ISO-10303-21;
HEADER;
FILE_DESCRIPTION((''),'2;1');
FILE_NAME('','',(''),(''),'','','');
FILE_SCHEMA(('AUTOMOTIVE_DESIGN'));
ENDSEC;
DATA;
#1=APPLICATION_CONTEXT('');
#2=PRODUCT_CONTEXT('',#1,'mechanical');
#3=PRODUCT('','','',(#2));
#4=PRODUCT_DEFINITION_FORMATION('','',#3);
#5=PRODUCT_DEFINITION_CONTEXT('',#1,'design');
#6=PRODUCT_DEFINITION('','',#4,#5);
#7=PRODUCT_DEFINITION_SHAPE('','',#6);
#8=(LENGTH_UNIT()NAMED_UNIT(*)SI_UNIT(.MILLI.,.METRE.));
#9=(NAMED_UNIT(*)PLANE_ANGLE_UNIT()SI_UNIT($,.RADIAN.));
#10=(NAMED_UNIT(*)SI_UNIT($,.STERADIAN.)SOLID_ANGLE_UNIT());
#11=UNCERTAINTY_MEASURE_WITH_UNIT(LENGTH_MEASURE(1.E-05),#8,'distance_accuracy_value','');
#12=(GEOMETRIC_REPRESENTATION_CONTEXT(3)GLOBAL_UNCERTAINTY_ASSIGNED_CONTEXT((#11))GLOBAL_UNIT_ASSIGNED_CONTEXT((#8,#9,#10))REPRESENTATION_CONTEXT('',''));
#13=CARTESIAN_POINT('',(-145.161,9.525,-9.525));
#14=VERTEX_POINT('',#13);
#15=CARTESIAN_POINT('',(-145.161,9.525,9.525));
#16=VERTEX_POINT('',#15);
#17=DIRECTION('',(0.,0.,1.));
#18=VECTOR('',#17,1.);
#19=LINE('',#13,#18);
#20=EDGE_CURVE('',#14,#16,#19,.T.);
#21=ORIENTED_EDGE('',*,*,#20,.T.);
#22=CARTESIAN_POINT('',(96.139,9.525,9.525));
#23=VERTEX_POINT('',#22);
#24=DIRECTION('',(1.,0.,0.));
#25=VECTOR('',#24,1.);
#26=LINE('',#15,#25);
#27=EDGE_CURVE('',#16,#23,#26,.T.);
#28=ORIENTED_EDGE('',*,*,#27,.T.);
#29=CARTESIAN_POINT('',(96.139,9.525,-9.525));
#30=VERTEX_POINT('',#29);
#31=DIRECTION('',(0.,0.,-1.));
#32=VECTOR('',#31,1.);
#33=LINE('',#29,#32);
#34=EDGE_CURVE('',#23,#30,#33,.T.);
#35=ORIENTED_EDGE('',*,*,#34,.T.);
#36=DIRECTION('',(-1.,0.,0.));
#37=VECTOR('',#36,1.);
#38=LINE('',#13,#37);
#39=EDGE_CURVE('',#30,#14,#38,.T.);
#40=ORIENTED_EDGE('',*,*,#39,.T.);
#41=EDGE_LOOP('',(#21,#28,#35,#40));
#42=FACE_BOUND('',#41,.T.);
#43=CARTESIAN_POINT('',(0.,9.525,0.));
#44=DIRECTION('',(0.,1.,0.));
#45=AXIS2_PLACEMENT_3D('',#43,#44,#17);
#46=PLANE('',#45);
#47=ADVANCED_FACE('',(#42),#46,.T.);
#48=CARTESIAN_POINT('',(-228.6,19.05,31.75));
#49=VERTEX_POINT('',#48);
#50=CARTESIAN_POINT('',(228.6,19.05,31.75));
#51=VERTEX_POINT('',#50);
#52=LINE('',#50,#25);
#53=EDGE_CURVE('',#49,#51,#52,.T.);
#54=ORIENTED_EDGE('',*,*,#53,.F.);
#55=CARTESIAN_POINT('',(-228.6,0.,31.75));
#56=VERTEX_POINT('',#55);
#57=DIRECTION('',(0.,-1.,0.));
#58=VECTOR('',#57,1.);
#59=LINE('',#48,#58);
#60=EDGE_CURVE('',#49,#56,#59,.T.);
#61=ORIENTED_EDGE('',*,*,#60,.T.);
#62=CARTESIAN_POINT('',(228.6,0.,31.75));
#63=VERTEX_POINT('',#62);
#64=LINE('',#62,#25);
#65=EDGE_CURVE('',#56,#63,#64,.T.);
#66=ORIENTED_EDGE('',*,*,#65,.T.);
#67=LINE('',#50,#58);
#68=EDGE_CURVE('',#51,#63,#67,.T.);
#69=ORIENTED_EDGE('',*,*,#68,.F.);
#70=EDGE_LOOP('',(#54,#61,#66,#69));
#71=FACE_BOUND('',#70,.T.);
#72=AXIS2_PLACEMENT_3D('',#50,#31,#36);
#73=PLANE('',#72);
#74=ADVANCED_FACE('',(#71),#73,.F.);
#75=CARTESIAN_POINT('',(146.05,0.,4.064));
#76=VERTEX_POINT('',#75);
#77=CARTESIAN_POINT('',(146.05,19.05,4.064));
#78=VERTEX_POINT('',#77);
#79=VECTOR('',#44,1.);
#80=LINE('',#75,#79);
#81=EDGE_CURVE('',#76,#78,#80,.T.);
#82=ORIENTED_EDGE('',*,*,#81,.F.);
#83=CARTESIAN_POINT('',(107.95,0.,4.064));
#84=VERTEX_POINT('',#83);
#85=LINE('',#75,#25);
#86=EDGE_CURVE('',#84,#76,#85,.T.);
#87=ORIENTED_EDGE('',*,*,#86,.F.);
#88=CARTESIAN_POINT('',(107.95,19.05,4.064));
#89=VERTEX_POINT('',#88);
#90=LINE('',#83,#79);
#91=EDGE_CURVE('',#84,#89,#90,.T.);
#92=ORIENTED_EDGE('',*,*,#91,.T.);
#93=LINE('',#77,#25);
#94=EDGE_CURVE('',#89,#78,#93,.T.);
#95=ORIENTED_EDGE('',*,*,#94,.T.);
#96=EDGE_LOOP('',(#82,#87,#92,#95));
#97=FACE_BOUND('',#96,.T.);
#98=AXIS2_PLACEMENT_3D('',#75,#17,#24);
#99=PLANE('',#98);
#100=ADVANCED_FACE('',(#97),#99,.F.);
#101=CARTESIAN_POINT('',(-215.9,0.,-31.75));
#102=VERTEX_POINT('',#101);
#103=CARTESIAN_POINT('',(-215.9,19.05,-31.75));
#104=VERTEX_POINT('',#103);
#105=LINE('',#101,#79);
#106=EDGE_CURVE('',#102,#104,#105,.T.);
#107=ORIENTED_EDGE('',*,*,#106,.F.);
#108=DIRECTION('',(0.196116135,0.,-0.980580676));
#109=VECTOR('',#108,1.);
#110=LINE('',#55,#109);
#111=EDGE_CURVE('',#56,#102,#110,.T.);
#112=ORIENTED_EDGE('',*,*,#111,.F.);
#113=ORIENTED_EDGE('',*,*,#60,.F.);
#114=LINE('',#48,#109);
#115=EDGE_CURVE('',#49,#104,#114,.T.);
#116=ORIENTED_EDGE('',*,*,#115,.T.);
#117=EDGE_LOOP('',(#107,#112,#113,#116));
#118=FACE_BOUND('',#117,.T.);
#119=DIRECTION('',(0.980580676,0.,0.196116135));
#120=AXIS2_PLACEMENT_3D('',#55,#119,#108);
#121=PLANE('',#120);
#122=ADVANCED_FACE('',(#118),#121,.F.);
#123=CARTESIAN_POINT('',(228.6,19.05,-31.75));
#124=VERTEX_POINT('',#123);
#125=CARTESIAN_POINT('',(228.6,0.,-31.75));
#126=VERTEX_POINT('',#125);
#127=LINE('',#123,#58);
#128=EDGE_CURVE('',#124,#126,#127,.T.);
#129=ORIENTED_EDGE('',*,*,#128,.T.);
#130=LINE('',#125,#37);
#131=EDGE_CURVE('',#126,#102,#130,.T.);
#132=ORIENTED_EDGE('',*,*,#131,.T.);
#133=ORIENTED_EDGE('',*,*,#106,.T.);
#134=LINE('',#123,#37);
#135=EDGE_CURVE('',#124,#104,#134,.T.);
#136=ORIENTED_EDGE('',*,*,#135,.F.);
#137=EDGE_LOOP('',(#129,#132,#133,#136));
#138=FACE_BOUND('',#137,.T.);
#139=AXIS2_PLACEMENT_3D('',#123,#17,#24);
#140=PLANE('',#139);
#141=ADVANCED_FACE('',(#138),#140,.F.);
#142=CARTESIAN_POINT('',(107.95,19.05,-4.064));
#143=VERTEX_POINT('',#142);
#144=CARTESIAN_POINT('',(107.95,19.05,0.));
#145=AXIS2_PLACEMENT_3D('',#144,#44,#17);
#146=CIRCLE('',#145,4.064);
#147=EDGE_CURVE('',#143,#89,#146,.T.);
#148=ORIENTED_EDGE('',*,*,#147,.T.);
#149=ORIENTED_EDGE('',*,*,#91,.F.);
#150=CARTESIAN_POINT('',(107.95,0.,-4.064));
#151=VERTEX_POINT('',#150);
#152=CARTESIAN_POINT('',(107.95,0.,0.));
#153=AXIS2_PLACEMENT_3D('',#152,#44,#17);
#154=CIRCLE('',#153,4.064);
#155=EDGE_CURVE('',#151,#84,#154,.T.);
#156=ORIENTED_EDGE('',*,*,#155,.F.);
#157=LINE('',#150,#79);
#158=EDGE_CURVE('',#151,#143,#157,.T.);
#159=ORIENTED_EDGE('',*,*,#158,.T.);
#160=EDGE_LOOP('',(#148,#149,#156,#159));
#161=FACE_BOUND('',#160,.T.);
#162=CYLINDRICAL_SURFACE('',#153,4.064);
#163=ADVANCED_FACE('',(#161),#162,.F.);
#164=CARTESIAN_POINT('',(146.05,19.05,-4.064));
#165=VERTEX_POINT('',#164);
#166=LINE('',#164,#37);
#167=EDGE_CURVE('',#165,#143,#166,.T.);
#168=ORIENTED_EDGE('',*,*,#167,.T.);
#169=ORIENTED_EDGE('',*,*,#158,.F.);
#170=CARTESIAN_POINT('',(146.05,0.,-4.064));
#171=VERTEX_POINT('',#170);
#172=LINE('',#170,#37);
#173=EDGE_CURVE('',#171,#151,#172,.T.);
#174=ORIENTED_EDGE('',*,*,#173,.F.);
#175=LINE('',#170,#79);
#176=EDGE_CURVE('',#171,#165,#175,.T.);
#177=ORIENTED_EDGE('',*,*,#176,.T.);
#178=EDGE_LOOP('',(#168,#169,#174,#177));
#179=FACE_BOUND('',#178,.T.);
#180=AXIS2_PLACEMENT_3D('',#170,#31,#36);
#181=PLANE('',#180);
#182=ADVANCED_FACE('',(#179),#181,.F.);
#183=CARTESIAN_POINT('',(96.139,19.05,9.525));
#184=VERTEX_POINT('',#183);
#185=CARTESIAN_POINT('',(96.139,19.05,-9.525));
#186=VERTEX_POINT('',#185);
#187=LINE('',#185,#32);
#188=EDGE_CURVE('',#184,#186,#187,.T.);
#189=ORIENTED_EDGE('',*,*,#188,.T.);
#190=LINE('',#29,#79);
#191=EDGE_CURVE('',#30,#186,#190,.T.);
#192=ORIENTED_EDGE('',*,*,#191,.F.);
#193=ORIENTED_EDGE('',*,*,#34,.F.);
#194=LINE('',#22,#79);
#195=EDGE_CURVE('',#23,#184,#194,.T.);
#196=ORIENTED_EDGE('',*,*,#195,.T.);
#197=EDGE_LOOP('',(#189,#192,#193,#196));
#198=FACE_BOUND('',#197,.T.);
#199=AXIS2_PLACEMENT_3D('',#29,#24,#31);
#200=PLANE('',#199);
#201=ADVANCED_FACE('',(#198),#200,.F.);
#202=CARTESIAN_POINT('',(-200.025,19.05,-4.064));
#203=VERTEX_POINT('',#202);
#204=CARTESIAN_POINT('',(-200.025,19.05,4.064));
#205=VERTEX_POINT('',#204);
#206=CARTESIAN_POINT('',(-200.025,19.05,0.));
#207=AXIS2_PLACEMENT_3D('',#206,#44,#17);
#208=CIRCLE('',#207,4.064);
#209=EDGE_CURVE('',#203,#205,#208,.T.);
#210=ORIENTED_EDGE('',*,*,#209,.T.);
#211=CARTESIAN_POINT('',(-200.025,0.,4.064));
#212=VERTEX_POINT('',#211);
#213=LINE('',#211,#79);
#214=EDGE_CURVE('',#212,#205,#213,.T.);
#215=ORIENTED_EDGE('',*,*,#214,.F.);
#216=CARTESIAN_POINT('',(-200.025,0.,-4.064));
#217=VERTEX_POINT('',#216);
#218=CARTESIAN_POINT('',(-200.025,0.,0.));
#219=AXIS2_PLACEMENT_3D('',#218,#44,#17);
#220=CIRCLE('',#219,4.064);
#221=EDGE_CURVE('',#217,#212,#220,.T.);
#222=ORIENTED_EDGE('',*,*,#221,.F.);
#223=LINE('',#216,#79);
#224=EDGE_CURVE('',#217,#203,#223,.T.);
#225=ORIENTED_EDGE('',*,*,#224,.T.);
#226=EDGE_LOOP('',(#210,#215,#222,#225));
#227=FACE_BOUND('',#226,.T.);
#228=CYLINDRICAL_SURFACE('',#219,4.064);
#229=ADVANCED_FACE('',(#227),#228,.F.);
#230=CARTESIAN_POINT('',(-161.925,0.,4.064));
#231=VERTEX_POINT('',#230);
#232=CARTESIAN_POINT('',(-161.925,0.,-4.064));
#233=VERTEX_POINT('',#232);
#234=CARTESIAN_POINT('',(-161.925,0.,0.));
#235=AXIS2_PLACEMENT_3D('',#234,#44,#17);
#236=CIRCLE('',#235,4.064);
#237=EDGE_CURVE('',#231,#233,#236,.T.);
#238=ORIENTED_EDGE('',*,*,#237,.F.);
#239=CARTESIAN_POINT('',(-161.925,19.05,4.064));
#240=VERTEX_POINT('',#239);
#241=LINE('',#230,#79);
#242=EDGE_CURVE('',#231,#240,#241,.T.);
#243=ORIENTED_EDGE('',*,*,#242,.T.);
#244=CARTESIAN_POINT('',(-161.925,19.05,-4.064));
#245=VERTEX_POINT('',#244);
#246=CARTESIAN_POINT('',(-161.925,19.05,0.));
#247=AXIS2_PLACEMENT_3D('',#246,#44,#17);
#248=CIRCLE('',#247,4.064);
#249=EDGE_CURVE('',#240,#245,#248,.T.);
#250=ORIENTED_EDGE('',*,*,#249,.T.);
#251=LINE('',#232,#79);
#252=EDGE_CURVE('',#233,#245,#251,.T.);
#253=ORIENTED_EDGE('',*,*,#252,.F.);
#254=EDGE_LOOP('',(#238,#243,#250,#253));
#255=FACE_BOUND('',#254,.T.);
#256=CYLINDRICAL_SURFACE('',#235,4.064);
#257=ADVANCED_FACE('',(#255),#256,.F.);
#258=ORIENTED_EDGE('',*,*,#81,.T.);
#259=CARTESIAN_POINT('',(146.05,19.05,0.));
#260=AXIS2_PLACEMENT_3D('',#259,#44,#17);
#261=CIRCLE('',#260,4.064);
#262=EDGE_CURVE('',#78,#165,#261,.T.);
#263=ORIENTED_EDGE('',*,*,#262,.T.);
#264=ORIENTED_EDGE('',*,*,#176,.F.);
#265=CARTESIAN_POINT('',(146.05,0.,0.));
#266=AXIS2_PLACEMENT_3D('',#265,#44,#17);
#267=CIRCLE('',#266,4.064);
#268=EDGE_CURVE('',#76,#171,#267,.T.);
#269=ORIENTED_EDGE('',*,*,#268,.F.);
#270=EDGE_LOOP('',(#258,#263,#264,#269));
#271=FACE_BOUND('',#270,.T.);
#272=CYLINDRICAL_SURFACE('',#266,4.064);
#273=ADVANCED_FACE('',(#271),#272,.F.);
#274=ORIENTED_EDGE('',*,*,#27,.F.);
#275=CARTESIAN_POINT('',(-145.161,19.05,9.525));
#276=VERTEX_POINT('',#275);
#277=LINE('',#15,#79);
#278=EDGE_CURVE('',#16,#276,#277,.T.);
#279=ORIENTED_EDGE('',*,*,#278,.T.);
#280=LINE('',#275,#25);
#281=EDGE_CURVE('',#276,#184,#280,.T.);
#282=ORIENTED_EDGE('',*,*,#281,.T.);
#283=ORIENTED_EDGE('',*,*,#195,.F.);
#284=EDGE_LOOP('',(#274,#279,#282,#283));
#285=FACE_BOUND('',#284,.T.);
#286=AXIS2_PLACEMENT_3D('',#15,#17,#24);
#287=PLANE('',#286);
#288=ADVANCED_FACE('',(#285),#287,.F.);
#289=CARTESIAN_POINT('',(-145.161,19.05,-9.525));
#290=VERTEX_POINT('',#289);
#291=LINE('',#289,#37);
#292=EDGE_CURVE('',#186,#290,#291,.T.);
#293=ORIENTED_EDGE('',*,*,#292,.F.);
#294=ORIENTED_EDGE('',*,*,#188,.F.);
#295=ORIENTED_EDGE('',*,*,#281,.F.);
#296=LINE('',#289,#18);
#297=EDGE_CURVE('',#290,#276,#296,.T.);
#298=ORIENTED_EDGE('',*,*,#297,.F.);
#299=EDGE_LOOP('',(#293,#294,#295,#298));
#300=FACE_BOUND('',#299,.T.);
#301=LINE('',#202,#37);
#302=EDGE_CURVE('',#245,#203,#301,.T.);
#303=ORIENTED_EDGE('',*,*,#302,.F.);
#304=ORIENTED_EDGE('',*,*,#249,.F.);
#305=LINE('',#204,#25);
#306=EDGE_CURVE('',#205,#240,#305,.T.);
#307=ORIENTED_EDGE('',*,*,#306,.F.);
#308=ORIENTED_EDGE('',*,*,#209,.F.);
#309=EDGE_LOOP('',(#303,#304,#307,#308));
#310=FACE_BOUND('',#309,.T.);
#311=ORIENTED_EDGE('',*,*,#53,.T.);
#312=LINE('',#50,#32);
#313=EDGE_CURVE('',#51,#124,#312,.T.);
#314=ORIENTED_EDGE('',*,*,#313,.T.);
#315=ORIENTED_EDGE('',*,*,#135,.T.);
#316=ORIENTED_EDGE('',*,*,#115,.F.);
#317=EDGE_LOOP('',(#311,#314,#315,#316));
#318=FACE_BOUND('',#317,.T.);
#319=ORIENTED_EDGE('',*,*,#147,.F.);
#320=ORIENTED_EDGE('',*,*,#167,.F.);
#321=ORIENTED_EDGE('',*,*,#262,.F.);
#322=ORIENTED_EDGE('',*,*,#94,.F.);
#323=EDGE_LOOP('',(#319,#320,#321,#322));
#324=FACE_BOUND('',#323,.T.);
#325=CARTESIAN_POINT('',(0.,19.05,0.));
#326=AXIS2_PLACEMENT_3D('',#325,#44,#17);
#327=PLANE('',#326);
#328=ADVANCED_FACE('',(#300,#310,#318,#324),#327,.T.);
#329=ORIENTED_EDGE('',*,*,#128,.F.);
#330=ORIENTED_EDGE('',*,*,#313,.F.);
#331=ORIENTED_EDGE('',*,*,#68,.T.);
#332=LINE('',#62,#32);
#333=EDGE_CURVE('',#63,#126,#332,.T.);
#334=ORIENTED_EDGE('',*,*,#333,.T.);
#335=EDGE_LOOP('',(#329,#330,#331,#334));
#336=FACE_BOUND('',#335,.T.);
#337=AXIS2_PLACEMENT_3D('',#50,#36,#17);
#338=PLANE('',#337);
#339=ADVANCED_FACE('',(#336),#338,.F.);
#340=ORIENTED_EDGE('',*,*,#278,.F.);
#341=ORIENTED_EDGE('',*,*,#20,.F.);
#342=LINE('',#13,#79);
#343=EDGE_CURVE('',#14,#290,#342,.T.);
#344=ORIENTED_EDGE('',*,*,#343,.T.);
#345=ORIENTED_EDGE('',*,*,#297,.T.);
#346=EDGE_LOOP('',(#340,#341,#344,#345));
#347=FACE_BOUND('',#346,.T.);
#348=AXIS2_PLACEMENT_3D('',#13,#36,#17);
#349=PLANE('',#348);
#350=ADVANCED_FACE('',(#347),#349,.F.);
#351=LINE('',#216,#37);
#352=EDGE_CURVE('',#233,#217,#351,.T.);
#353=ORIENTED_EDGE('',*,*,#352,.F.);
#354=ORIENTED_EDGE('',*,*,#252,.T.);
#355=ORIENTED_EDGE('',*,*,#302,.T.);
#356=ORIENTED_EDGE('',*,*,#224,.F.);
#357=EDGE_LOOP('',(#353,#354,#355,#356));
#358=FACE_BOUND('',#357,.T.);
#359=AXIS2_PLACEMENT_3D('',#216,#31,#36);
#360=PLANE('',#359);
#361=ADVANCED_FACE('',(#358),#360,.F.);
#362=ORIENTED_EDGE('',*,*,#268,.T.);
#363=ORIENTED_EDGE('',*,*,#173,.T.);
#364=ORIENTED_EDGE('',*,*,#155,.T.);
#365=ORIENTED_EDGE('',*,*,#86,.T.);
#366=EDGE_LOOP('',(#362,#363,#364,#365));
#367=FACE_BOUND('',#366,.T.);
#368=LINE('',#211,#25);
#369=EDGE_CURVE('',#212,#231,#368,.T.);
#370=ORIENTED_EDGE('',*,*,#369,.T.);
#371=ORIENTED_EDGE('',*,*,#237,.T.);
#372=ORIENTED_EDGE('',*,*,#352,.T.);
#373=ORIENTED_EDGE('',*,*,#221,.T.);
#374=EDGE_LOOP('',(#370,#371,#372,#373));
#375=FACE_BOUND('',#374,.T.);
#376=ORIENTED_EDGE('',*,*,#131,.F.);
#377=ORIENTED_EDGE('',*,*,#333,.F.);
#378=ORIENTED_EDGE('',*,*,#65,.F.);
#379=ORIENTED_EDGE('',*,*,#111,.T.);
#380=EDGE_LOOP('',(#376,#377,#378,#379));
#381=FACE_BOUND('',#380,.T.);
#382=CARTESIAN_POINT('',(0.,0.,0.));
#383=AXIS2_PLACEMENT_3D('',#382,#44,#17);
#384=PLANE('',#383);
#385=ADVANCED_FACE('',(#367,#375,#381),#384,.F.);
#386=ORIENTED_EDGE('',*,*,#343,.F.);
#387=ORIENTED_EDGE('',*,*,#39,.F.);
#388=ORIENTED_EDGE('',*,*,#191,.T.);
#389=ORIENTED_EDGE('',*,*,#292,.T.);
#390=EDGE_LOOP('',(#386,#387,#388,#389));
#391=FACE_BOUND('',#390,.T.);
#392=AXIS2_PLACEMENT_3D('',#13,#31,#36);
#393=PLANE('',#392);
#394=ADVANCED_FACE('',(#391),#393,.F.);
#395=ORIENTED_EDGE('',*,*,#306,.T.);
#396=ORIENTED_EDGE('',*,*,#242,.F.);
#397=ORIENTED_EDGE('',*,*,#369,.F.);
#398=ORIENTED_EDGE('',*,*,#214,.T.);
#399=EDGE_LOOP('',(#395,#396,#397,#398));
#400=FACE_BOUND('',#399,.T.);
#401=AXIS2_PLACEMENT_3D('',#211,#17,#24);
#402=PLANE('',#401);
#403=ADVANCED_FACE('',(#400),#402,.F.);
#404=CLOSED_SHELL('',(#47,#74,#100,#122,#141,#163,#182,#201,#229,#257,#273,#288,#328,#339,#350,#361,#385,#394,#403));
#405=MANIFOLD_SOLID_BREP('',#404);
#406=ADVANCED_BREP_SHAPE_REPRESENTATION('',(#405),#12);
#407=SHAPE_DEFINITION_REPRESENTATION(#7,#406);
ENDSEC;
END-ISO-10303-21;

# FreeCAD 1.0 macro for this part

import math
import FreeCAD as App
import Part
import Sketcher
Q = App.Units.Quantity


def add_polygon(sketch, points):
    """Adds a closed chain of lines whose ends are joined by coincident constraints."""
    first, n = sketch.GeometryCount, len(points)
    for a, b in zip(points, points[1:] + points[:1]):
        sketch.addGeometry(Part.LineSegment(App.Vector(*a, 0), App.Vector(*b, 0)), False)
    for i in range(n):
        sketch.addConstraint(Sketcher.Constraint("Coincident", first + i, 2, first + (i + 1) % n, 1))

doc = App.newDocument("Part")
body = doc.addObject("PartDesign::Body", "Body")

# Sketch on XZ plane
sketch1 = body.newObject("Sketcher::SketchObject", "Sketch")
sketch1.AttachmentSupport = (doc.getObject("XZ_Plane"), [""])
sketch1.MapMode = "FlatFace"
add_polygon(sketch1, [(-228.6, -31.75), (-228.6, 31.75), (228.6, 31.75), (228.6, -31.75)])  # lines 0-3
sketch1.addConstraint([
    Sketcher.Constraint("Vertical", 0),
    Sketcher.Constraint("Horizontal", 1),
    Sketcher.Constraint("Vertical", 2),
    Sketcher.Constraint("Horizontal", 3),
    Sketcher.Constraint("Symmetric", 0, 2, 2, 2, -1, 1),
    Sketcher.Constraint("DistanceX", 1, 1, 1, 2, Q("18 in")),
    Sketcher.Constraint("DistanceY", 0, 1, 0, 2, Q("2.5 in")),
])
pad1 = body.newObject("PartDesign::Pad", "Pad")
pad1.Profile = sketch1
pad1.Length = Q("0.75 in")
pad1.Reversed = True

# Sketch on XZ plane
sketch2 = body.newObject("Sketcher::SketchObject", "Sketch001")
sketch2.AttachmentSupport = (doc.getObject("XZ_Plane"), [""])
sketch2.MapMode = "FlatFace"
sketch2.AttachmentOffset = App.Placement(App.Vector(0, 0, -0.75 * 25.4), App.Rotation())
sketch2.addGeometry([
    Part.LineSegment(App.Vector(107.95, 4.064, 0), App.Vector(146.05, 4.064, 0)),  # 0
    Part.ArcOfCircle(Part.Circle(App.Vector(146.05, 0, 0), App.Vector(0, 0, 1), 4.064), math.radians(-90), math.radians(90)),  # 1
    Part.LineSegment(App.Vector(146.05, -4.064, 0), App.Vector(107.95, -4.064, 0)),  # 2
    Part.ArcOfCircle(Part.Circle(App.Vector(107.95, 0, 0), App.Vector(0, 0, 1), 4.064), math.radians(90), math.radians(270)),  # 3
    Part.LineSegment(App.Vector(-161.925, -4.064, 0), App.Vector(-200.025, -4.064, 0)),  # 4
    Part.ArcOfCircle(Part.Circle(App.Vector(-200.025, 0, 0), App.Vector(0, 0, 1), 4.064), math.radians(90), math.radians(270)),  # 5
    Part.LineSegment(App.Vector(-200.025, 4.064, 0), App.Vector(-161.925, 4.064, 0)),  # 6
    Part.ArcOfCircle(Part.Circle(App.Vector(-161.925, 0, 0), App.Vector(0, 0, 1), 4.064), math.radians(-90), math.radians(90)),  # 7
], False)
sketch2.addConstraint([
    Sketcher.Constraint("Tangent", 0, 2, 1, 2),
    Sketcher.Constraint("Tangent", 1, 1, 2, 1),
    Sketcher.Constraint("Tangent", 2, 2, 3, 2),
    Sketcher.Constraint("Tangent", 3, 1, 0, 1),
    Sketcher.Constraint("Tangent", 4, 2, 5, 2),
    Sketcher.Constraint("Tangent", 5, 1, 6, 1),
    Sketcher.Constraint("Tangent", 6, 2, 7, 2),
    Sketcher.Constraint("Tangent", 7, 1, 4, 1),
    Sketcher.Constraint("Horizontal", 0),
    Sketcher.Constraint("Horizontal", 2),
    Sketcher.Constraint("Horizontal", 4),
    Sketcher.Constraint("Horizontal", 6),
    Sketcher.Constraint("Equal", 3, 5),
    Sketcher.Constraint("PointOnObject", 1, 3, -1),
    Sketcher.Constraint("PointOnObject", 5, 3, -1),
    Sketcher.Constraint("Equal", 2, 4),
    Sketcher.Constraint("Radius", 1, Q("0.16 in")),
    Sketcher.Constraint("DistanceX", 0, 1, 0, 2, Q("1.5 in")),
    Sketcher.Constraint("DistanceX", -1, 1, 1, 3, Q("5.75 in")),
    Sketcher.Constraint("DistanceX", 5, 3, -1, 1, Q("7.875 in")),
])
pocket1 = body.newObject("PartDesign::Pocket", "Pocket")
pocket1.Profile = sketch2
pocket1.Length = Q("0.75 in")
pocket1.Reversed = True

# Sketch on XZ plane
sketch3 = body.newObject("Sketcher::SketchObject", "Sketch002")
sketch3.AttachmentSupport = (doc.getObject("XZ_Plane"), [""])
sketch3.MapMode = "FlatFace"
sketch3.AttachmentOffset = App.Placement(App.Vector(0, 0, -0.75 * 25.4), App.Rotation())
add_polygon(sketch3, [(-228.6, -31.75), (-228.6, 31.75), (-215.9, -31.75)])  # lines 0-2
sketch3.addConstraint([
    Sketcher.Constraint("Vertical", 0),
    Sketcher.Constraint("Horizontal", 2),
    Sketcher.Constraint("DistanceX", 2, 2, 2, 1, Q("0.5 in")),
    Sketcher.Constraint("DistanceY", 0, 1, 0, 2, Q("2.5 in")),
    Sketcher.Constraint("DistanceX", 0, 2, -1, 1, Q("9 in")),
    Sketcher.Constraint("DistanceY", -1, 1, 0, 2, Q("1.25 in")),
])
pocket2 = body.newObject("PartDesign::Pocket", "Pocket001")
pocket2.Profile = sketch3
pocket2.Type = "ThroughAll"
pocket2.Reversed = True

# Sketch on XZ plane
sketch4 = body.newObject("Sketcher::SketchObject", "Sketch003")
sketch4.AttachmentSupport = (doc.getObject("XZ_Plane"), [""])
sketch4.MapMode = "FlatFace"
sketch4.AttachmentOffset = App.Placement(App.Vector(0, 0, -0.75 * 25.4), App.Rotation())
add_polygon(sketch4, [(-145.161, -9.525), (-145.161, 9.525), (96.139, 9.525), (96.139, -9.525)])  # lines 0-3
sketch4.addConstraint([
    Sketcher.Constraint("Vertical", 0),
    Sketcher.Constraint("Horizontal", 1),
    Sketcher.Constraint("Vertical", 2),
    Sketcher.Constraint("Horizontal", 3),
    Sketcher.Constraint("DistanceX", 1, 1, 1, 2, Q("9.5 in")),
    Sketcher.Constraint("DistanceY", 0, 1, 0, 2, Q("0.75 in")),
    Sketcher.Constraint("DistanceX", 0, 2, -1, 1, Q("5.715 in")),
    Sketcher.Constraint("DistanceY", -1, 1, 0, 2, Q("0.375 in")),
])
pocket3 = body.newObject("PartDesign::Pocket", "Pocket002")
pocket3.Profile = sketch4
pocket3.Length = Q("0.375 in")
pocket3.Reversed = True

doc.recompute()
